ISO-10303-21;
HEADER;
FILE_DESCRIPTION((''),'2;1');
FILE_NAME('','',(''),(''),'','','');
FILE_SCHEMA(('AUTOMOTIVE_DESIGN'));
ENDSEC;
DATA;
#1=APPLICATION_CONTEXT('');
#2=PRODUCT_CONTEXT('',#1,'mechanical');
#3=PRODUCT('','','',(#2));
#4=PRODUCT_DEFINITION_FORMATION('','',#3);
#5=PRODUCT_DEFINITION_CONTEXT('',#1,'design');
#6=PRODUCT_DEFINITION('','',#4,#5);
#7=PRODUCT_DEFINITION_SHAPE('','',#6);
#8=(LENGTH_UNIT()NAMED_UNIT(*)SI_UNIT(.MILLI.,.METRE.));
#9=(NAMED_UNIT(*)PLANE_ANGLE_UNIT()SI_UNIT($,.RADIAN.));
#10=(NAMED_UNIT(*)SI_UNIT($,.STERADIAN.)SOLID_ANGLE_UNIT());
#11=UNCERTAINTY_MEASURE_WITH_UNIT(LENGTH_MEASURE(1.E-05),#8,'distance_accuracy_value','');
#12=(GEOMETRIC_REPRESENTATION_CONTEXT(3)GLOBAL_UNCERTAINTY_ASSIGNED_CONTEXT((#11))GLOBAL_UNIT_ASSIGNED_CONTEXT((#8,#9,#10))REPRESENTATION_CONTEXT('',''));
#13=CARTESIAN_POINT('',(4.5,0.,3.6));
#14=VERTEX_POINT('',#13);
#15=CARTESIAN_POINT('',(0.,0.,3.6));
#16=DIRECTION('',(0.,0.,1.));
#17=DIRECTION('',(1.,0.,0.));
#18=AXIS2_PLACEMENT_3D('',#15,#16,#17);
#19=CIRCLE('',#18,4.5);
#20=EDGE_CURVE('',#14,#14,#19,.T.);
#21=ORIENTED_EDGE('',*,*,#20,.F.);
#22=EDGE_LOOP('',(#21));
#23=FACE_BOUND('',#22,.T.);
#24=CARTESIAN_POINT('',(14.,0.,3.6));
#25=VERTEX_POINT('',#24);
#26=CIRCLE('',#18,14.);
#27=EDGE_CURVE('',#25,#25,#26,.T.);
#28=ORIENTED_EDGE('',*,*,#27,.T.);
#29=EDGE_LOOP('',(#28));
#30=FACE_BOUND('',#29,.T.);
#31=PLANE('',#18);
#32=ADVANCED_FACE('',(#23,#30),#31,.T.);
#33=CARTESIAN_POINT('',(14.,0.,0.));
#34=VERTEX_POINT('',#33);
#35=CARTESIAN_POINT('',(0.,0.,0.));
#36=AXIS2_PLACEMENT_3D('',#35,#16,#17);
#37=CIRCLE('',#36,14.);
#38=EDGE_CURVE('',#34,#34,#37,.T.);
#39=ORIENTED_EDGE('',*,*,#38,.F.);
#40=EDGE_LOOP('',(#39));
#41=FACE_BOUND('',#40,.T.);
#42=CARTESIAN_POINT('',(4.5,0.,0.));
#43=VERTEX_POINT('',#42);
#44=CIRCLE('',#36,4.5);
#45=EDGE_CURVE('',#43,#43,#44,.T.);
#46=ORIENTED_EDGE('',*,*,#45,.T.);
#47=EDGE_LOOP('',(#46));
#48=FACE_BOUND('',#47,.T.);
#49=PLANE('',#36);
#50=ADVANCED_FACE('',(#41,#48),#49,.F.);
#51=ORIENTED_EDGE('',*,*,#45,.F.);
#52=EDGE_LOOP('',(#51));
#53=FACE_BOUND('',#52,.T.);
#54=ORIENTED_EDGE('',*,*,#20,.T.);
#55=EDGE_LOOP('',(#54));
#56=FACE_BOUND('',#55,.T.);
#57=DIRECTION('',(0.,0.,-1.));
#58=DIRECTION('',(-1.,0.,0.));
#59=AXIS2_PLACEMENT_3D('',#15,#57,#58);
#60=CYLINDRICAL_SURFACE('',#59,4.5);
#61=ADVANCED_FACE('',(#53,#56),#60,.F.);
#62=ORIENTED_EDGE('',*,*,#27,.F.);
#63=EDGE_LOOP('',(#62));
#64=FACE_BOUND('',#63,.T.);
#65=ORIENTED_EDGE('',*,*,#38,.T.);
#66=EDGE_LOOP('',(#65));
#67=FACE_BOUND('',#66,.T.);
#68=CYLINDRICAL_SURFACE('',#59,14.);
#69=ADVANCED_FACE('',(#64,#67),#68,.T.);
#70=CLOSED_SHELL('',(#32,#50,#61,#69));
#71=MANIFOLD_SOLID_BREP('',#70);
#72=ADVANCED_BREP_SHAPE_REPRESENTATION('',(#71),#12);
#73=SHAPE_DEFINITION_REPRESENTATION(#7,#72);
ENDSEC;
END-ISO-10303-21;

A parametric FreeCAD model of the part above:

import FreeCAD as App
import Part
import Sketcher
from FreeCAD import Vector
Q = App.Units.Quantity

doc = App.newDocument("Part")
params = doc.addObject("Spreadsheet::Sheet", "Params")
for row, (alias, value) in enumerate([
    ("sketch1_diameter", "28 mm"),
    ("sketch1_diameter2", "9 mm"),
    ("pad1_length", "3.6 mm"),
], start=1):
    params.set(f"A{row}", alias)
    params.set(f"B{row}", "=" + value)
    params.setAlias(f"B{row}", alias)

body = doc.addObject("PartDesign::Body", "Body")

# Sketch on XY plane
sketch1 = body.newObject("Sketcher::SketchObject", "Sketch")
sketch1.AttachmentSupport = (doc.getObject("XY_Plane"), [""])
sketch1.MapMode = "FlatFace"
sketch1.addGeometry([
    Part.Circle(Vector(0, 0, 0), Vector(0, 0, 1), 14),
    Part.Circle(Vector(0, 0, 0), Vector(0, 0, 1), 4.5),
], False)
sketch1.addConstraint([
    Sketcher.Constraint("Coincident", 0, 3, -1, 1),
    Sketcher.Constraint("Coincident", 1, 3, -1, 1),
    Sketcher.Constraint("Diameter", 0, Q("28 mm")),
    Sketcher.Constraint("Diameter", 1, Q("9 mm")),
])
sketch1.setExpression("Constraints[2]", "Params.sketch1_diameter")
sketch1.setExpression("Constraints[3]", "Params.sketch1_diameter2")
pad1 = body.newObject("PartDesign::Pad", "Pad")
pad1.Profile = sketch1
pad1.setExpression("Length", "Params.pad1_length")

doc.recompute()
